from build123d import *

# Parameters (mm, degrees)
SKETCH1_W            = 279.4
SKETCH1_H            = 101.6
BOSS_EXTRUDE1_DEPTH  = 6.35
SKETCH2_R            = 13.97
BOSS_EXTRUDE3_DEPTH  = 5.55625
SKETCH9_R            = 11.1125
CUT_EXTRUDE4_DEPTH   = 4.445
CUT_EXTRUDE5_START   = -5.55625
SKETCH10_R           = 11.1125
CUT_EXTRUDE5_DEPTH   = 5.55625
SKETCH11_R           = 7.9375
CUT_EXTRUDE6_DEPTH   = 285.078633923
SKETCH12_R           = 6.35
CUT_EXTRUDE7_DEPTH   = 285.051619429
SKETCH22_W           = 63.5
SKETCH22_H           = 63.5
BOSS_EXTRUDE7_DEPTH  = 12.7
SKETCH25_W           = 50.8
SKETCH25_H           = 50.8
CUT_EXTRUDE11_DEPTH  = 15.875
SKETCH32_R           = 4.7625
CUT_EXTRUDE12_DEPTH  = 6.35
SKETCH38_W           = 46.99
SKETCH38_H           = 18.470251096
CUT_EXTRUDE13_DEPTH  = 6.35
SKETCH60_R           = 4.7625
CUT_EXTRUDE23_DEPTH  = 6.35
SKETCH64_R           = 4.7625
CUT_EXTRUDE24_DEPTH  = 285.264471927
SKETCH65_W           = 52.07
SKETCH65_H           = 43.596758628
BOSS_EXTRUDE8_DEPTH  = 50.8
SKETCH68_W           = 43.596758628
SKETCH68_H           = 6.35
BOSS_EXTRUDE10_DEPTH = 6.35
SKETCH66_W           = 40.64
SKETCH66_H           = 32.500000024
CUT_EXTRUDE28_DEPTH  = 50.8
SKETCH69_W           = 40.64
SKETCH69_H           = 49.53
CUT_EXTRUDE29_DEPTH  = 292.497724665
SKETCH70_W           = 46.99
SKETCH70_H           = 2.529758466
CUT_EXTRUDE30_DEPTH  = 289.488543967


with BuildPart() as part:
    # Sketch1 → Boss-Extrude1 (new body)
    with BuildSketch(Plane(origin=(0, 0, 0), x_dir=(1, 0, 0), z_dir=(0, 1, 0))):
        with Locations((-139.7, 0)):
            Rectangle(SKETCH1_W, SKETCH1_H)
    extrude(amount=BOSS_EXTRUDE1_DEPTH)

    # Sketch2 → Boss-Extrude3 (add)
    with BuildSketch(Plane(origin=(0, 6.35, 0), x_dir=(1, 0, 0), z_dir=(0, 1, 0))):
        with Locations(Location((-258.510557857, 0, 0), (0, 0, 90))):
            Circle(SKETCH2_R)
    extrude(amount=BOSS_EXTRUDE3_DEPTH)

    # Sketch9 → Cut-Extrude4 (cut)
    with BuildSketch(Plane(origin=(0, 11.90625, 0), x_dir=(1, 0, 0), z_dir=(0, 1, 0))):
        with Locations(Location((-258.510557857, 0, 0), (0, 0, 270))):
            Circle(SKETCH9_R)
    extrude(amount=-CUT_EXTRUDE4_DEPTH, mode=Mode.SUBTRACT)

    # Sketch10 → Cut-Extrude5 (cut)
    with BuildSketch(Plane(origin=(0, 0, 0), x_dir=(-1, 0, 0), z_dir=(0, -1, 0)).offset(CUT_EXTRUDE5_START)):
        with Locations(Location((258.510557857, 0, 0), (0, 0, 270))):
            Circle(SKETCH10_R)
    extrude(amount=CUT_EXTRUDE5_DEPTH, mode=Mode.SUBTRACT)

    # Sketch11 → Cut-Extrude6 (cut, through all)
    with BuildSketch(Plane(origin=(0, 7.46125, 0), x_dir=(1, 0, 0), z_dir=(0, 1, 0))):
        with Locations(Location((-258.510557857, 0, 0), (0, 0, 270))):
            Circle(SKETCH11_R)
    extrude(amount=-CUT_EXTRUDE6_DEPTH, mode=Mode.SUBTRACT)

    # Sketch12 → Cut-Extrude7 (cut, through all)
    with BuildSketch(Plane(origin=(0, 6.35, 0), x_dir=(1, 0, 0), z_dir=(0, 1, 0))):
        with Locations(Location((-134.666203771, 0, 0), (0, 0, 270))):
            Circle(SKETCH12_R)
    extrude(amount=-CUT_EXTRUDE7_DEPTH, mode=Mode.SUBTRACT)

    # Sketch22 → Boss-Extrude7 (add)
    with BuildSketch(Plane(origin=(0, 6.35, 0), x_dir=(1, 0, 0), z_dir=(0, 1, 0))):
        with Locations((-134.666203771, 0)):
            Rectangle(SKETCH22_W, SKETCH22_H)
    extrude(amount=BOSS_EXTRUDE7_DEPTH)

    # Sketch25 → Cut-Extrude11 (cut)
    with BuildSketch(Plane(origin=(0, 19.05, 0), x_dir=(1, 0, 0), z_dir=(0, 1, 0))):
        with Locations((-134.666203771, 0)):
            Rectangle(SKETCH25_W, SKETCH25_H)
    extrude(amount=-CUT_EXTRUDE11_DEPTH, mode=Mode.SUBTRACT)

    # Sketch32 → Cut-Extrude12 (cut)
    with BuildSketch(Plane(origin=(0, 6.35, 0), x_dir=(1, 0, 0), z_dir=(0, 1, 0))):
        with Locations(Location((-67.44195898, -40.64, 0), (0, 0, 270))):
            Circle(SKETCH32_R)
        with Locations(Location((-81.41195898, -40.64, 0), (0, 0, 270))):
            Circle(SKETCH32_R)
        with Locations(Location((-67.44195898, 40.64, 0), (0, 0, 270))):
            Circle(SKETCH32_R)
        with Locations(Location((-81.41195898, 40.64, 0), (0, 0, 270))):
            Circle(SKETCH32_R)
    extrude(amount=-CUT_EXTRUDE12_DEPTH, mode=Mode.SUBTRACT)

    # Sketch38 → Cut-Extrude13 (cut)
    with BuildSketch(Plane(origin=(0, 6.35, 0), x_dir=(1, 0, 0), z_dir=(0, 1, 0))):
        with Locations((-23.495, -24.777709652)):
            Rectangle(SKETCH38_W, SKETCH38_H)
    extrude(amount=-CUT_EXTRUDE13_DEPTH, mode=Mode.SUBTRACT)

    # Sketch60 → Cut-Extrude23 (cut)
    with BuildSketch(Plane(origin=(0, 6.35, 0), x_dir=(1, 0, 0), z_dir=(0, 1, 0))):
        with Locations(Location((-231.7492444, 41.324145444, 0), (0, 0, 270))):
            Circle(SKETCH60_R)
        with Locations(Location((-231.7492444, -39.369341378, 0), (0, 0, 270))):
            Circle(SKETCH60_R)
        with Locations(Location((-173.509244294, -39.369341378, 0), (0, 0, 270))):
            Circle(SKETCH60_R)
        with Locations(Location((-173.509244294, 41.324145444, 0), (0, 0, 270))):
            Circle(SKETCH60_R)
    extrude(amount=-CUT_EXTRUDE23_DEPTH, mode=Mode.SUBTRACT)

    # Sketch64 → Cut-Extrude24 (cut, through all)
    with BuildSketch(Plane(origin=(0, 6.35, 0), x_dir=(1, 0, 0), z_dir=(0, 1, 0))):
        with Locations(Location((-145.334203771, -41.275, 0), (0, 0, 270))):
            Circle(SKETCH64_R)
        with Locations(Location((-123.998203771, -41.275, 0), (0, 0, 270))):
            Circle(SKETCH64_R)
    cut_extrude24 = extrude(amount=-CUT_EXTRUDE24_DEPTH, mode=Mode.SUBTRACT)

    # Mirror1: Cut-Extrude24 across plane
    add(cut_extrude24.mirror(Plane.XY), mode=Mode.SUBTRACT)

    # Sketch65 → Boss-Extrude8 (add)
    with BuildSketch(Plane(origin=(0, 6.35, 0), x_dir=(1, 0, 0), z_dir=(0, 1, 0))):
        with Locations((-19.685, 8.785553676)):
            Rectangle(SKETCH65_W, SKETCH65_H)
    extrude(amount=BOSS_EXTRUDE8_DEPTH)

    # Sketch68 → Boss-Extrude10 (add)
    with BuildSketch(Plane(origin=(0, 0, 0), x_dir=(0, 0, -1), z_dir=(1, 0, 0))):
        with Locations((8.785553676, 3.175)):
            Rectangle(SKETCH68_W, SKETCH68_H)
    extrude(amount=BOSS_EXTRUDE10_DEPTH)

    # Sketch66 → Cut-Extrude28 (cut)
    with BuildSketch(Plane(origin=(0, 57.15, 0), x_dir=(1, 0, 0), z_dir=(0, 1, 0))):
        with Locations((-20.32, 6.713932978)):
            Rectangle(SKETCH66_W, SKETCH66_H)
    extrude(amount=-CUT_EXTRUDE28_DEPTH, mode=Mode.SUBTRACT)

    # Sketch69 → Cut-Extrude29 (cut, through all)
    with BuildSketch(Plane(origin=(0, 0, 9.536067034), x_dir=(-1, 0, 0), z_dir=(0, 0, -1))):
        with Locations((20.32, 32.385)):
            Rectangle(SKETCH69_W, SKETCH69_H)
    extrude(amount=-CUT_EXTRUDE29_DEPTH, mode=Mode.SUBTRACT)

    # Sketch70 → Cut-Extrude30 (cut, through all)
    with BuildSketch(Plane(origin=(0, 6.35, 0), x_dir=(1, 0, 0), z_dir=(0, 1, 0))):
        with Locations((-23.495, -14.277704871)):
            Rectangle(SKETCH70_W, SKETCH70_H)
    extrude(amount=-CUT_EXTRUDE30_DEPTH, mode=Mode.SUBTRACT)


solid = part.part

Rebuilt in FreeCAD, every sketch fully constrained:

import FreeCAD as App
import Part
import Sketcher
from FreeCAD import Vector
Q = App.Units.Quantity


def add_polygon(sketch, points):
    """Adds a closed chain of lines whose ends are joined by coincident constraints."""
    first, n = sketch.GeometryCount, len(points)
    for a, b in zip(points, points[1:] + points[:1]):
        sketch.addGeometry(Part.LineSegment(App.Vector(*a, 0), App.Vector(*b, 0)), False)
    for i in range(n):
        sketch.addConstraint(Sketcher.Constraint("Coincident", first + i, 2, first + (i + 1) % n, 1))

doc = App.newDocument("Part")
body = doc.addObject("PartDesign::Body", "Body")

# Sketch on XZ plane
sketch1 = doc.addObject("Sketcher::SketchObject", "Sketch")
body.addObject(sketch1)
sketch1.AttachmentSupport = (doc.XZ_Plane, [""])
sketch1.MapMode = "FlatFace"
add_polygon(sketch1, [(-279, -51), (-279, 51), (0, 51), (0, -51)])  # lines 0-3
sketch1.addConstraint([
    Sketcher.Constraint("Vertical", 0),
    Sketcher.Constraint("Horizontal", 1),
    Sketcher.Constraint("Vertical", 2),
    Sketcher.Constraint("Horizontal", 3),
    Sketcher.Constraint("Symmetric", 1, 2, 2, 2, -1, 1),
    Sketcher.Constraint("DistanceX", 1, 1, 1, 2, Q("11 in")),
    Sketcher.Constraint("DistanceY", 0, 1, 0, 2, Q("4 in")),
])
pad1 = doc.addObject("PartDesign::Pad", "Pad")
body.addObject(pad1)
pad1.Profile = sketch1
pad1.Length = Q("0.25 in")
pad1.Reversed = True

# Sketch on XZ plane
sketch2 = doc.addObject("Sketcher::SketchObject", "Sketch001")
body.addObject(sketch2)
sketch2.AttachmentSupport = (doc.XZ_Plane, [""])
sketch2.MapMode = "FlatFace"
sketch2.AttachmentOffset = App.Placement(Vector(0, 0, -0.25 * 25.4), App.Rotation())
sketch2.addGeometry(Part.Circle(Vector(-259, 0, 0), Vector(0, 0, 1), 14), False)
sketch2.addConstraint([
    Sketcher.Constraint("PointOnObject", 0, 3, -1),
    Sketcher.Constraint("Diameter", 0, Q("1.1 in")),
    Sketcher.Constraint("DistanceX", 0, 3, -1, 1, Q("258.510558 mm")),
])
pad2 = doc.addObject("PartDesign::Pad", "Pad001")
body.addObject(pad2)
pad2.Profile = sketch2
pad2.Length = Q("0.21875 in")
pad2.Reversed = True

# Sketch on XZ plane
sketch3 = doc.addObject("Sketcher::SketchObject", "Sketch002")
body.addObject(sketch3)
sketch3.AttachmentSupport = (doc.XZ_Plane, [""])
sketch3.MapMode = "FlatFace"
sketch3.AttachmentOffset = App.Placement(Vector(0, 0, -0.46875 * 25.4), App.Rotation())
sketch3.addGeometry(Part.Circle(Vector(-259, 0, 0), Vector(0, 0, 1), 11), False)
sketch3.addConstraint([
    Sketcher.Constraint("PointOnObject", 0, 3, -1),
    Sketcher.Constraint("Diameter", 0, Q("0.875 in")),
    Sketcher.Constraint("DistanceX", 0, 3, -1, 1, Q("258.510558 mm")),
])
pocket1 = doc.addObject("PartDesign::Pocket", "Pocket")
body.addObject(pocket1)
pocket1.Profile = sketch3
pocket1.Length = Q("0.175 in")
pocket1.Reversed = True

# Sketch on XZ plane
sketch4 = doc.addObject("Sketcher::SketchObject", "Sketch003")
body.addObject(sketch4)
sketch4.AttachmentSupport = (doc.XZ_Plane, [""])
sketch4.MapMode = "FlatFace"
sketch4.AttachmentOffset = App.Placement(Vector(0, 0, -0.21875 * 25.4), App.Rotation())
sketch4.addGeometry(Part.Circle(Vector(-259, 0, 0), Vector(0, 0, 1), 11), False)
sketch4.addConstraint([
    Sketcher.Constraint("PointOnObject", 0, 3, -1),
    Sketcher.Constraint("Diameter", 0, Q("0.875 in")),
    Sketcher.Constraint("DistanceX", 0, 3, -1, 1, Q("258.510558 mm")),
])
pocket2 = doc.addObject("PartDesign::Pocket", "Pocket001")
body.addObject(pocket2)
pocket2.Profile = sketch4
pocket2.Length = Q("0.21875 in")
pocket2.Reversed = True

# Sketch on XZ plane
sketch5 = doc.addObject("Sketcher::SketchObject", "Sketch004")
body.addObject(sketch5)
sketch5.AttachmentSupport = (doc.XZ_Plane, [""])
sketch5.MapMode = "FlatFace"
sketch5.AttachmentOffset = App.Placement(Vector(0, 0, -7.46125), App.Rotation())
sketch5.addGeometry(Part.Circle(Vector(-259, 0, 0), Vector(0, 0, 1), 8), False)
sketch5.addConstraint([
    Sketcher.Constraint("PointOnObject", 0, 3, -1),
    Sketcher.Constraint("Diameter", 0, Q("0.625 in")),
    Sketcher.Constraint("DistanceX", 0, 3, -1, 1, Q("258.510558 mm")),
])
pocket3 = doc.addObject("PartDesign::Pocket", "Pocket002")
body.addObject(pocket3)
pocket3.Profile = sketch5
pocket3.Type = "ThroughAll"
pocket3.Reversed = True

# Sketch on XZ plane
sketch6 = doc.addObject("Sketcher::SketchObject", "Sketch005")
body.addObject(sketch6)
sketch6.AttachmentSupport = (doc.XZ_Plane, [""])
sketch6.MapMode = "FlatFace"
sketch6.AttachmentOffset = App.Placement(Vector(0, 0, -0.25 * 25.4), App.Rotation())
sketch6.addGeometry(Part.Circle(Vector(-135, 0, 0), Vector(0, 0, 1), 6), False)
sketch6.addConstraint([
    Sketcher.Constraint("PointOnObject", 0, 3, -1),
    Sketcher.Constraint("Diameter", 0, Q("0.5 in")),
    Sketcher.Constraint("DistanceX", 0, 3, -1, 1, Q("134.666204 mm")),
])
pocket4 = doc.addObject("PartDesign::Pocket", "Pocket003")
body.addObject(pocket4)
pocket4.Profile = sketch6
pocket4.Type = "ThroughAll"
pocket4.Reversed = True

# Sketch on XZ plane
sketch7 = doc.addObject("Sketcher::SketchObject", "Sketch006")
body.addObject(sketch7)
sketch7.AttachmentSupport = (doc.XZ_Plane, [""])
sketch7.MapMode = "FlatFace"
sketch7.AttachmentOffset = App.Placement(Vector(0, 0, -0.25 * 25.4), App.Rotation())
add_polygon(sketch7, [(-166, -32), (-166, 32), (-103, 32), (-103, -32)])  # lines 0-3
sketch7.addConstraint([
    Sketcher.Constraint("Vertical", 0),
    Sketcher.Constraint("Horizontal", 1),
    Sketcher.Constraint("Vertical", 2),
    Sketcher.Constraint("Horizontal", 3),
    Sketcher.Constraint("Equal", 3, 0),
    Sketcher.Constraint("DistanceX", 1, 1, 1, 2, Q("2.5 in")),
    Sketcher.Constraint("DistanceY", -1, 1, 0, 2, Q("1.25 in")),
    Sketcher.Constraint("DistanceX", 0, 2, -1, 1, Q("166.416204 mm")),
])
pad3 = doc.addObject("PartDesign::Pad", "Pad002")
body.addObject(pad3)
pad3.Profile = sketch7
pad3.Length = Q("0.5 in")
pad3.Reversed = True

# Sketch on XZ plane
sketch8 = doc.addObject("Sketcher::SketchObject", "Sketch007")
body.addObject(sketch8)
sketch8.AttachmentSupport = (doc.XZ_Plane, [""])
sketch8.MapMode = "FlatFace"
sketch8.AttachmentOffset = App.Placement(Vector(0, 0, -0.75 * 25.4), App.Rotation())
add_polygon(sketch8, [(-160, -25), (-160, 25), (-109, 25), (-109, -25)])  # lines 0-3
sketch8.addConstraint([
    Sketcher.Constraint("Vertical", 0),
    Sketcher.Constraint("Horizontal", 1),
    Sketcher.Constraint("Vertical", 2),
    Sketcher.Constraint("Horizontal", 3),
    Sketcher.Constraint("Equal", 3, 0),
    Sketcher.Constraint("DistanceX", 1, 1, 1, 2, Q("2 in")),
    Sketcher.Constraint("DistanceY", -1, 1, 0, 2, Q("1 in")),
    Sketcher.Constraint("DistanceX", 0, 2, -1, 1, Q("160.066204 mm")),
])
pocket5 = doc.addObject("PartDesign::Pocket", "Pocket004")
body.addObject(pocket5)
pocket5.Profile = sketch8
pocket5.Length = Q("0.625 in")
pocket5.Reversed = True

# Sketch on XZ plane
sketch9 = doc.addObject("Sketcher::SketchObject", "Sketch008")
body.addObject(sketch9)
sketch9.AttachmentSupport = (doc.XZ_Plane, [""])
sketch9.MapMode = "FlatFace"
sketch9.AttachmentOffset = App.Placement(Vector(0, 0, -0.25 * 25.4), App.Rotation())
sketch9.addGeometry([
    Part.Circle(Vector(-67.4, 40.6, 0), Vector(0, 0, 1), 4.8),
    Part.Circle(Vector(-81.4, 40.6, 0), Vector(0, 0, 1), 4.8),
    Part.Circle(Vector(-67.4, -40.6, 0), Vector(0, 0, 1), 4.8),
    Part.Circle(Vector(-81.4, -40.6, 0), Vector(0, 0, 1), 4.8),
], False)
sketch9.addConstraint([
    Sketcher.Constraint("Equal", 0, 1),
    Sketcher.Constraint("Equal", 1, 2),
    Sketcher.Constraint("Equal", 2, 3),
    Sketcher.Constraint("Symmetric", 0, 3, 2, 3, -1),
    Sketcher.Constraint("Symmetric", 1, 3, 3, 3, -1),
    Sketcher.Constraint("Horizontal", 0, 3, 1, 3),
    Sketcher.Constraint("Diameter", 0, Q("0.375 in")),
    Sketcher.Constraint("DistanceY", -1, 1, 0, 3, Q("1.6 in")),
    Sketcher.Constraint("DistanceX", 1, 3, 0, 3, Q("0.55 in")),
    Sketcher.Constraint("DistanceX", 0, 3, -1, 1, Q("67.441959 mm")),
])
pocket6 = doc.addObject("PartDesign::Pocket", "Pocket005")
body.addObject(pocket6)
pocket6.Profile = sketch9
pocket6.Length = Q("0.25 in")
pocket6.Reversed = True

# Sketch on XZ plane
sketch10 = doc.addObject("Sketcher::SketchObject", "Sketch009")
body.addObject(sketch10)
sketch10.AttachmentSupport = (doc.XZ_Plane, [""])
sketch10.MapMode = "FlatFace"
sketch10.AttachmentOffset = App.Placement(Vector(0, 0, -0.25 * 25.4), App.Rotation())
add_polygon(sketch10, [(-47, 16), (-47, 34), (0, 34), (0, 16)])  # lines 0-3
sketch10.addConstraint([
    Sketcher.Constraint("Vertical", 0),
    Sketcher.Constraint("Horizontal", 1),
    Sketcher.Constraint("Vertical", 2),
    Sketcher.Constraint("Horizontal", 3),
    Sketcher.Constraint("PointOnObject", 1, 2, -2),
    Sketcher.Constraint("DistanceX", 1, 1, 1, 2, Q("1.85 in")),
    Sketcher.Constraint("DistanceY", 0, 1, 0, 2, Q("18.470251 mm")),
    Sketcher.Constraint("DistanceY", -1, 1, 0, 2, Q("34.012835 mm")),
])
pocket7 = doc.addObject("PartDesign::Pocket", "Pocket006")
body.addObject(pocket7)
pocket7.Profile = sketch10
pocket7.Length = Q("0.25 in")
pocket7.Reversed = True

# Sketch on XZ plane
sketch11 = doc.addObject("Sketcher::SketchObject", "Sketch010")
body.addObject(sketch11)
sketch11.AttachmentSupport = (doc.XZ_Plane, [""])
sketch11.MapMode = "FlatFace"
sketch11.AttachmentOffset = App.Placement(Vector(0, 0, -0.25 * 25.4), App.Rotation())
sketch11.addGeometry([
    Part.Circle(Vector(-231.7, -41.3, 0), Vector(0, 0, 1), 4.8),
    Part.Circle(Vector(-231.7, 39.4, 0), Vector(0, 0, 1), 4.8),
    Part.Circle(Vector(-173.5, 39.4, 0), Vector(0, 0, 1), 4.8),
    Part.Circle(Vector(-173.5, -41.3, 0), Vector(0, 0, 1), 4.8),
], False)
sketch11.addConstraint([
    Sketcher.Constraint("Equal", 0, 1),
    Sketcher.Constraint("Equal", 1, 2),
    Sketcher.Constraint("Equal", 2, 3),
    Sketcher.Constraint("Horizontal", 1, 3, 2, 3),
    Sketcher.Constraint("Horizontal", 0, 3, 3, 3),
    Sketcher.Constraint("Vertical", 0, 3, 1, 3),
    Sketcher.Constraint("Vertical", 2, 3, 3, 3),
    Sketcher.Constraint("Diameter", 0, Q("0.375 in")),
    Sketcher.Constraint("DistanceX", 1, 3, 2, 3, Q("58.24 mm")),
    Sketcher.Constraint("DistanceY", -1, 1, 1, 3, Q("39.369341 mm")),
    Sketcher.Constraint("DistanceX", 0, 3, -1, 1, Q("231.749244 mm")),
    Sketcher.Constraint("DistanceY", 0, 3, -1, 1, Q("41.324145 mm")),
])
pocket8 = doc.addObject("PartDesign::Pocket", "Pocket007")
body.addObject(pocket8)
pocket8.Profile = sketch11
pocket8.Length = Q("0.25 in")
pocket8.Reversed = True

# Sketch on XZ plane
sketch12 = doc.addObject("Sketcher::SketchObject", "Sketch011")
body.addObject(sketch12)
sketch12.AttachmentSupport = (doc.XZ_Plane, [""])
sketch12.MapMode = "FlatFace"
sketch12.AttachmentOffset = App.Placement(Vector(0, 0, -0.25 * 25.4), App.Rotation())
sketch12.addGeometry([
    Part.Circle(Vector(-145.3, 41.3, 0), Vector(0, 0, 1), 4.8),
    Part.Circle(Vector(-124, 41.3, 0), Vector(0, 0, 1), 4.8),
], False)
sketch12.addConstraint([
    Sketcher.Constraint("Equal", 0, 1),
    Sketcher.Constraint("Horizontal", 0, 3, 1, 3),
    Sketcher.Constraint("Diameter", 0, Q("0.375 in")),
    Sketcher.Constraint("DistanceX", 0, 3, 1, 3, Q("0.84 in")),
    Sketcher.Constraint("DistanceY", -1, 1, 0, 3, Q("1.625 in")),
    Sketcher.Constraint("DistanceX", 0, 3, -1, 1, Q("145.334204 mm")),
])
pocket9 = doc.addObject("PartDesign::Pocket", "Pocket008")
body.addObject(pocket9)
pocket9.Profile = sketch12
pocket9.Type = "ThroughAll"
pocket9.Reversed = True
doc.recompute()

mirrored = doc.addObject("PartDesign::Mirrored", "Mirrored")
body.addObject(mirrored)
mirrored.Originals = [pocket9]
mirrored.MirrorPlane = (doc.XY_Plane, [""])
body.Tip = mirrored

# Sketch on XZ plane
sketch13 = doc.addObject("Sketcher::SketchObject", "Sketch012")
body.addObject(sketch13)
sketch13.AttachmentSupport = (doc.XZ_Plane, [""])
sketch13.MapMode = "FlatFace"
sketch13.AttachmentOffset = App.Placement(Vector(0, 0, -0.25 * 25.4), App.Rotation())
add_polygon(sketch13, [(-46, -31), (-46, 13), (6, 13), (6, -31)])  # lines 0-3
sketch13.addConstraint([
    Sketcher.Constraint("Vertical", 0),
    Sketcher.Constraint("Horizontal", 1),
    Sketcher.Constraint("Vertical", 2),
    Sketcher.Constraint("Horizontal", 3),
    Sketcher.Constraint("DistanceX", 1, 1, 1, 2, Q("2.05 in")),
    Sketcher.Constraint("DistanceX", 0, 2, -1, 1, Q("1.8 in")),
    Sketcher.Constraint("DistanceY", 0, 1, 0, 2, Q("43.596759 mm")),
    Sketcher.Constraint("DistanceY", -1, 1, 0, 2, Q("13.012826 mm")),
])
pad4 = doc.addObject("PartDesign::Pad", "Pad003")
body.addObject(pad4)
pad4.Profile = sketch13
pad4.Length = Q("2 in")
pad4.Reversed = True

# Sketch on YZ plane
sketch14 = doc.addObject("Sketcher::SketchObject", "Sketch013")
body.addObject(sketch14)
sketch14.AttachmentSupport = (doc.YZ_Plane, [""])
sketch14.MapMode = "FlatFace"
add_polygon(sketch14, [(6, 13), (0, 13), (0, -31), (6, -31)])  # lines 0-3
sketch14.addConstraint([
    Sketcher.Constraint("Horizontal", 0),
    Sketcher.Constraint("Vertical", 1),
    Sketcher.Constraint("Horizontal", 2),
    Sketcher.Constraint("Vertical", 3),
    Sketcher.Constraint("PointOnObject", 0, 2, -2),
    Sketcher.Constraint("DistanceX", 0, 2, 0, 1, Q("0.25 in")),
    Sketcher.Constraint("DistanceY", 1, 2, 1, 1, Q("43.596759 mm")),
    Sketcher.Constraint("DistanceY", -1, 1, 0, 2, Q("13.012826 mm")),
])
pad5 = doc.addObject("PartDesign::Pad", "Pad004")
body.addObject(pad5)
pad5.Profile = sketch14
pad5.Length = Q("0.25 in")

# Sketch on XZ plane
sketch15 = doc.addObject("Sketcher::SketchObject", "Sketch014")
body.addObject(sketch15)
sketch15.AttachmentSupport = (doc.XZ_Plane, [""])
sketch15.MapMode = "FlatFace"
sketch15.AttachmentOffset = App.Placement(Vector(0, 0, -2.25 * 25.4), App.Rotation())
add_polygon(sketch15, [(-41, -23), (-41, 10), (0, 10), (0, -23)])  # lines 0-3
sketch15.addConstraint([
    Sketcher.Constraint("Vertical", 0),
    Sketcher.Constraint("Horizontal", 1),
    Sketcher.Constraint("Vertical", 2),
    Sketcher.Constraint("Horizontal", 3),
    Sketcher.Constraint("PointOnObject", 1, 2, -2),
    Sketcher.Constraint("DistanceX", 1, 1, 1, 2, Q("1.6 in")),
    Sketcher.Constraint("DistanceY", 0, 1, 0, 2, Q("32.5 mm")),
    Sketcher.Constraint("DistanceY", -1, 1, 0, 2, Q("9.536067 mm")),
])
pocket10 = doc.addObject("PartDesign::Pocket", "Pocket009")
body.addObject(pocket10)
pocket10.Profile = sketch15
pocket10.Length = Q("2 in")
pocket10.Reversed = True

# Sketch on XY plane
sketch16 = doc.addObject("Sketcher::SketchObject", "Sketch015")
body.addObject(sketch16)
sketch16.AttachmentSupport = (doc.XY_Plane, [""])
sketch16.MapMode = "FlatFace"
sketch16.AttachmentOffset = App.Placement(Vector(0, 0, 9.536067), App.Rotation())
add_polygon(sketch16, [(0, 57), (0, 8), (-41, 8), (-41, 57)])  # lines 0-3
sketch16.addConstraint([
    Sketcher.Constraint("Vertical", 0),
    Sketcher.Constraint("Horizontal", 1),
    Sketcher.Constraint("Vertical", 2),
    Sketcher.Constraint("Horizontal", 3),
    Sketcher.Constraint("PointOnObject", 0, 2, -2),
    Sketcher.Constraint("DistanceX", 1, 2, 1, 1, Q("1.6 in")),
    Sketcher.Constraint("DistanceY", 0, 2, 0, 1, Q("1.95 in")),
    Sketcher.Constraint("DistanceY", -1, 1, 0, 2, Q("0.3 in")),
])
pocket11 = doc.addObject("PartDesign::Pocket", "Pocket010")
body.addObject(pocket11)
pocket11.Profile = sketch16
pocket11.Type = "ThroughAll"
pocket11.Reversed = True

# Sketch on XZ plane
sketch17 = doc.addObject("Sketcher::SketchObject", "Sketch016")
body.addObject(sketch17)
sketch17.AttachmentSupport = (doc.XZ_Plane, [""])
sketch17.MapMode = "FlatFace"
sketch17.AttachmentOffset = App.Placement(Vector(0, 0, -0.25 * 25.4), App.Rotation())
add_polygon(sketch17, [(-47, 13), (-47, 15.5), (0, 15.5), (0, 13)])  # lines 0-3
sketch17.addConstraint([
    Sketcher.Constraint("Vertical", 0),
    Sketcher.Constraint("Horizontal", 1),
    Sketcher.Constraint("Vertical", 2),
    Sketcher.Constraint("Horizontal", 3),
    Sketcher.Constraint("PointOnObject", 1, 2, -2),
    Sketcher.Constraint("DistanceX", 1, 1, 1, 2, Q("1.85 in")),
    Sketcher.Constraint("DistanceY", 0, 1, 0, 2, Q("2.529758 mm")),
    Sketcher.Constraint("DistanceY", -1, 1, 0, 2, Q("15.542584 mm")),
])
pocket12 = doc.addObject("PartDesign::Pocket", "Pocket011")
body.addObject(pocket12)
pocket12.Profile = sketch17
pocket12.Type = "ThroughAll"
pocket12.Reversed = True

doc.recompute()
